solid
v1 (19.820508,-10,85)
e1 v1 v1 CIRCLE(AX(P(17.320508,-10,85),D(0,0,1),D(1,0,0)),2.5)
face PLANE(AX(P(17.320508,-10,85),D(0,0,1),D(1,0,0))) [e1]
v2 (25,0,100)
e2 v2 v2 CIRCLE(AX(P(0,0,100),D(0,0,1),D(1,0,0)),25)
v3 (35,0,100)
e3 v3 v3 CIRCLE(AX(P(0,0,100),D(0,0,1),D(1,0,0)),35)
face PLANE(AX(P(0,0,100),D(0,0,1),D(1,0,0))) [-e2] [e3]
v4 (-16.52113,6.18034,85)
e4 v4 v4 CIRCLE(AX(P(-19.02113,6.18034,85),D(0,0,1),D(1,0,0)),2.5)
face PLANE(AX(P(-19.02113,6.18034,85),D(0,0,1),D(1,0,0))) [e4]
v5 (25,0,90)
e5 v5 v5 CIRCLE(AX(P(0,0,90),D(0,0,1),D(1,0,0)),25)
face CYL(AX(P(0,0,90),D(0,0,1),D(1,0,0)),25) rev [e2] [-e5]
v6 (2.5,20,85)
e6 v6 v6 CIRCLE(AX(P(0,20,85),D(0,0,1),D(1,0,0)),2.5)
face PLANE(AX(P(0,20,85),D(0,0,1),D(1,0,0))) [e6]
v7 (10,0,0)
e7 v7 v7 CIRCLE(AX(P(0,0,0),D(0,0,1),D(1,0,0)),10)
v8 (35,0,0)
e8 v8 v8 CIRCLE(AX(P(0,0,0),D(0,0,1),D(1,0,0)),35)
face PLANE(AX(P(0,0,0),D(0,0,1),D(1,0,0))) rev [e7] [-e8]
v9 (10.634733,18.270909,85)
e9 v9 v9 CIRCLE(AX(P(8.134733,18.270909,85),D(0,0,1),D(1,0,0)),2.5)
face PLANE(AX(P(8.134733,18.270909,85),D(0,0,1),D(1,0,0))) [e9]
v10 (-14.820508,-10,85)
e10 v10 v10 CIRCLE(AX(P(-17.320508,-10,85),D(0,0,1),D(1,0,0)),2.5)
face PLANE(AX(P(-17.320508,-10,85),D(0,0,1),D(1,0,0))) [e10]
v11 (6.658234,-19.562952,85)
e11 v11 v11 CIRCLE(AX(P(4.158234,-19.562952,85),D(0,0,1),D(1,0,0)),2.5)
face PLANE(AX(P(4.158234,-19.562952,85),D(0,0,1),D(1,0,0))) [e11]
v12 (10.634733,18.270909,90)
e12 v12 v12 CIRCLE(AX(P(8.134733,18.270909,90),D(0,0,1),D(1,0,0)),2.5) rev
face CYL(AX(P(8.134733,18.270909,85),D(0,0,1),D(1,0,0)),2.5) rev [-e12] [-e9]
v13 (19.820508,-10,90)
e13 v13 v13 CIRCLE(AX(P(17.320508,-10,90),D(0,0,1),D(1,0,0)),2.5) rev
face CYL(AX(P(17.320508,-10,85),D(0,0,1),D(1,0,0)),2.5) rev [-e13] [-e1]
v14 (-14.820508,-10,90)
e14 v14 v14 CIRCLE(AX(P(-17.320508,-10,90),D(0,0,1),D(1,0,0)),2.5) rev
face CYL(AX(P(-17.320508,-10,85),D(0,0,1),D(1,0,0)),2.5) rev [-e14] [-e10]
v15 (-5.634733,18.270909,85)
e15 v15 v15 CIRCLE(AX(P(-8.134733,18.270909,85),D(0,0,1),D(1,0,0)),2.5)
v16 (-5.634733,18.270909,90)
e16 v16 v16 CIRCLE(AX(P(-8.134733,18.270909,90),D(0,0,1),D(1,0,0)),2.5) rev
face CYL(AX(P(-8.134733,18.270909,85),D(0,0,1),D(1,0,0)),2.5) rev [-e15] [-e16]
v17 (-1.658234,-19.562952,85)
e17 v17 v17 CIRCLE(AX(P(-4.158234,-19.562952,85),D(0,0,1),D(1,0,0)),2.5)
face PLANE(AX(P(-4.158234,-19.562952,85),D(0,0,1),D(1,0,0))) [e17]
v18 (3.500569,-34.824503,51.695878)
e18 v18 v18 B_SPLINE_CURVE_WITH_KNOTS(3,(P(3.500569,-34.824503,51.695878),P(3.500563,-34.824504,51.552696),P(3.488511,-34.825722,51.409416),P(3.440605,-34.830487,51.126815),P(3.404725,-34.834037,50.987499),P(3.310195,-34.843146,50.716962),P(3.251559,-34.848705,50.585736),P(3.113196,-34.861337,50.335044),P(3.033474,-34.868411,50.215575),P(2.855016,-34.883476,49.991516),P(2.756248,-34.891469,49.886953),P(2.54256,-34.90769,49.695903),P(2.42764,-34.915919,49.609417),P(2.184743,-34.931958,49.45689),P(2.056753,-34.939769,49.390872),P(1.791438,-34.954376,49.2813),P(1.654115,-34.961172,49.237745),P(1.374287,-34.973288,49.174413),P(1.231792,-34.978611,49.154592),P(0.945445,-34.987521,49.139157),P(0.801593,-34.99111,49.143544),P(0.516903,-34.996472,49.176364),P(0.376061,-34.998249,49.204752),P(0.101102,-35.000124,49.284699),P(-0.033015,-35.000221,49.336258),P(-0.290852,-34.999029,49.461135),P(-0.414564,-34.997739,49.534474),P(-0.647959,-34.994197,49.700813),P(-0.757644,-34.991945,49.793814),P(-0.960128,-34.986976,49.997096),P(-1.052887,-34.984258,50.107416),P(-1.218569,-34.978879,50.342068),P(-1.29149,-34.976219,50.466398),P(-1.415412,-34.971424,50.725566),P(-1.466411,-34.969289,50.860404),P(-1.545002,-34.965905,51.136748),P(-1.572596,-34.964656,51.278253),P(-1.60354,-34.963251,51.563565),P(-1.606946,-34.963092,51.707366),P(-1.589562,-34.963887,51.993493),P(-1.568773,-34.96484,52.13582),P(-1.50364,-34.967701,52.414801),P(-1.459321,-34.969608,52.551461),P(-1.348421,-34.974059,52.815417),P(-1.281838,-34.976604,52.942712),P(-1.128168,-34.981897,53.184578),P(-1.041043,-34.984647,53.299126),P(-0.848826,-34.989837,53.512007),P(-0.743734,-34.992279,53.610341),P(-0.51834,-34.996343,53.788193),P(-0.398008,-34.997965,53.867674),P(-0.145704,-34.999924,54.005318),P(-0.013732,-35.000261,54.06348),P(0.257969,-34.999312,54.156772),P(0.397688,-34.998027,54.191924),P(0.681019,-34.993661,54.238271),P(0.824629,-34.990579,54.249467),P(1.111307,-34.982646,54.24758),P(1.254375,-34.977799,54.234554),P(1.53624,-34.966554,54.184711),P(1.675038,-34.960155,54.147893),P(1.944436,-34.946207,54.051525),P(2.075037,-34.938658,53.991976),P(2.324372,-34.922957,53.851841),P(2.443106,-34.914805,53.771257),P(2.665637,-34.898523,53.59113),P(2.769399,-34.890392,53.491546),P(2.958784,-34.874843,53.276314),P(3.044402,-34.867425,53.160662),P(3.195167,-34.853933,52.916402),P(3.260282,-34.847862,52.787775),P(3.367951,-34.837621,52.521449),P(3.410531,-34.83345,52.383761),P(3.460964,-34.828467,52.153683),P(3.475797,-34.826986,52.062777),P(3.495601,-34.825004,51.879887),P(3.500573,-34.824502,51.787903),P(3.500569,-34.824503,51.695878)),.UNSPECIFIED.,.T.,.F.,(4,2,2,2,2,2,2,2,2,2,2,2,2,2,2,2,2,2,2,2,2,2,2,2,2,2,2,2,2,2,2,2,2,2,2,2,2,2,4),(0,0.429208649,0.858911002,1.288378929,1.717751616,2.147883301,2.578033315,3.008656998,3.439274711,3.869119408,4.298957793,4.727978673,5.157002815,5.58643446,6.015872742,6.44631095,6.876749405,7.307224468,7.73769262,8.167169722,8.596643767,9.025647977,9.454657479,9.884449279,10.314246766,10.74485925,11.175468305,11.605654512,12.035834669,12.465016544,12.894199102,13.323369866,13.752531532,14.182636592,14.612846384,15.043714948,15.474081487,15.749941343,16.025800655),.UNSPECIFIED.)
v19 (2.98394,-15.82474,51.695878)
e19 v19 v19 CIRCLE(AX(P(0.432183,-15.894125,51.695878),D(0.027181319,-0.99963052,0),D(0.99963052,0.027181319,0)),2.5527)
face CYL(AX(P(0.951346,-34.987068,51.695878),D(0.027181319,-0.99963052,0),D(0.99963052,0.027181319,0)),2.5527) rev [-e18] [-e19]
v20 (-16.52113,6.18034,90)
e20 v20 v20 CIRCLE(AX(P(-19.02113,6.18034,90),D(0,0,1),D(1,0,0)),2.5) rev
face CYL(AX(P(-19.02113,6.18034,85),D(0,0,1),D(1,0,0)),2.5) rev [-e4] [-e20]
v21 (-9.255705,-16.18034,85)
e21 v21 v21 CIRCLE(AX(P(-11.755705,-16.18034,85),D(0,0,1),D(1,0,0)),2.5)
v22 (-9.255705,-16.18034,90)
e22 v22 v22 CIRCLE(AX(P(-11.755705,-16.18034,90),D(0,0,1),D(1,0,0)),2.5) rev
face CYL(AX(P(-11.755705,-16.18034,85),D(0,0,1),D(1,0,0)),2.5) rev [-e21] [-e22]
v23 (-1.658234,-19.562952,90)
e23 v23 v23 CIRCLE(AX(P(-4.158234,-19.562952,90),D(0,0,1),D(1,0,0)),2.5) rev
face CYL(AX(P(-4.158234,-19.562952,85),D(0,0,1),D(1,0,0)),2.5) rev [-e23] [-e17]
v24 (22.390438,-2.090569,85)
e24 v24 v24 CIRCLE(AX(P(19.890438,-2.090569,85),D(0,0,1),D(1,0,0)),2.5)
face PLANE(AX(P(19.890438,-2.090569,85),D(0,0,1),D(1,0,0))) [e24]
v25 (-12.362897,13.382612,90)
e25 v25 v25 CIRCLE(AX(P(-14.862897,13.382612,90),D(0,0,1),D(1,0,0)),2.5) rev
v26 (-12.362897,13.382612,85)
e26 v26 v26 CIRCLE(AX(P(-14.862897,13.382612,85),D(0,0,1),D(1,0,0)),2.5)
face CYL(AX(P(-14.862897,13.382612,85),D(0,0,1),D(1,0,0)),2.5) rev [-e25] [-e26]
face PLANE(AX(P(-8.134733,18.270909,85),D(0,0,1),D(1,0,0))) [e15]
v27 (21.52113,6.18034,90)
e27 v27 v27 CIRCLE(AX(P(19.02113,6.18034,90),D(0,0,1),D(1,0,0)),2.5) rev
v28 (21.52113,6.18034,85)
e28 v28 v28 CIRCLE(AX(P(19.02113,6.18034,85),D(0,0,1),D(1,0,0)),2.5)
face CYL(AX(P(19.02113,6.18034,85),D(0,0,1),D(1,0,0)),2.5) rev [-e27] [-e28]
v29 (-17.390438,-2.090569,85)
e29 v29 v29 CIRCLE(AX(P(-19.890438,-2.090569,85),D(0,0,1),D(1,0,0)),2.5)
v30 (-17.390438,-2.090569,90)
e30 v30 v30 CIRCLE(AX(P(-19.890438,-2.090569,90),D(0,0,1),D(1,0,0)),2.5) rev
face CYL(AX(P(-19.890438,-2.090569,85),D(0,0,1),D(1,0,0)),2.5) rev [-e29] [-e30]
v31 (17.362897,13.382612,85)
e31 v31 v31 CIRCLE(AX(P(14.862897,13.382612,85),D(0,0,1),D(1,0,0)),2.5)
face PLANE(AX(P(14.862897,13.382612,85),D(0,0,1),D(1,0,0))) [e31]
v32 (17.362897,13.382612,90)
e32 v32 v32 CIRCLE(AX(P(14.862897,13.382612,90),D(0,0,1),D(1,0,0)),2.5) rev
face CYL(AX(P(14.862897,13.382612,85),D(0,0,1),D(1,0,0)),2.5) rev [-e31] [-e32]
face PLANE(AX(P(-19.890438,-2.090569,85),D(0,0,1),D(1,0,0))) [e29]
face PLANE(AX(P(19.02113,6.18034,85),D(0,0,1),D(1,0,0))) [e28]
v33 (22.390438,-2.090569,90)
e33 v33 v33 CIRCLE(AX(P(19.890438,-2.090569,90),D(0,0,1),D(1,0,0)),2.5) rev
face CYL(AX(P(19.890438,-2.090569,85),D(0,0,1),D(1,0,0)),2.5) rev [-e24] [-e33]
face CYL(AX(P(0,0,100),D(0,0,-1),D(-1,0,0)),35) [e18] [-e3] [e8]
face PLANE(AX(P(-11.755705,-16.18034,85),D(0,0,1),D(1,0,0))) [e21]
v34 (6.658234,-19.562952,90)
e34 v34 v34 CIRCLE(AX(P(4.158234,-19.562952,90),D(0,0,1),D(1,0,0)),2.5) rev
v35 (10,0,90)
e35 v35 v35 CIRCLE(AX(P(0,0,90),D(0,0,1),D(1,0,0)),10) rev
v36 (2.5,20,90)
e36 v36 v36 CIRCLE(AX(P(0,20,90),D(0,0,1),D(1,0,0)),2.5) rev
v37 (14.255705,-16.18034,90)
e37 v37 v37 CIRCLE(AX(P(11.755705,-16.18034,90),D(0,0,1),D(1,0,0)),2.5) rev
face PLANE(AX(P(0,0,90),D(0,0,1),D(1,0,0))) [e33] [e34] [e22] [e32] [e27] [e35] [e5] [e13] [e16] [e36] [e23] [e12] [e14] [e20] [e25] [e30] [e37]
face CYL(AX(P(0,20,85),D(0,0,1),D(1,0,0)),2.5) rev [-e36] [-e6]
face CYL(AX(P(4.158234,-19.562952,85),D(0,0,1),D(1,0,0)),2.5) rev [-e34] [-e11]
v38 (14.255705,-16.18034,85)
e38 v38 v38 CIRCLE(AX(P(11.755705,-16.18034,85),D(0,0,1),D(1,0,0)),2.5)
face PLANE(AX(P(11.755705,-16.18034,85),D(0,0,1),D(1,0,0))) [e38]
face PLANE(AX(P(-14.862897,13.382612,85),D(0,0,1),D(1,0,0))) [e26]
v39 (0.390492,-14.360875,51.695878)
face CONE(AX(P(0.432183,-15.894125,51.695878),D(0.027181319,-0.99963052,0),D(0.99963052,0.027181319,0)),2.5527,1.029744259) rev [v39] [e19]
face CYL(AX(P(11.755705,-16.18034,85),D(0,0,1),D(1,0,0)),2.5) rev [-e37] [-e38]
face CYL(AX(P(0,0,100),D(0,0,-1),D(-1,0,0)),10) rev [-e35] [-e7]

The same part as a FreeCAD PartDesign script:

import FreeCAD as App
import Part
import Sketcher

V = App.Vector

doc = App.newDocument("Part")
body = doc.addObject("PartDesign::Body", "Body")

sketch1 = body.newObject("Sketcher::SketchObject", "Sketch")
sketch1.AttachmentSupport = (doc.getObject("XY_Plane"), [""])
sketch1.MapMode = "FlatFace"
sketch1.addGeometry(Part.Circle(V(0, 0, 0), V(0, 0, 1), 35), False)
sketch1.addConstraint([
    Sketcher.Constraint("Coincident", 0, 3, -1, 1),
    Sketcher.Constraint("Diameter", 0, 70.0),
])
pad1 = body.newObject("PartDesign::Pad", "Pad")
pad1.Profile = sketch1
pad1.Length = 100

sketch2 = body.newObject("Sketcher::SketchObject", "Sketch001")
sketch2.AttachmentSupport = (doc.getObject("XY_Plane"), [""])
sketch2.MapMode = "FlatFace"
sketch2.AttachmentOffset = App.Placement(V(0, 0, 100), App.Rotation())
sketch2.addGeometry([
    Part.Circle(V(0, 20, 0), V(0, 0, 1), 2.5),
    Part.Circle(V(8.1, 18.3, 0), V(0, 0, 1), 2.5),
    Part.Circle(V(14.9, 13.4, 0), V(0, 0, 1), 2.5),
    Part.Circle(V(19, 6.2, 0), V(0, 0, 1), 2.5),
    Part.Circle(V(19.9, -2.1, 0), V(0, 0, 1), 2.5),
    Part.Circle(V(17.3, -10, 0), V(0, 0, 1), 2.5),
    Part.Circle(V(11.8, -16.2, 0), V(0, 0, 1), 2.5),
    Part.Circle(V(4.2, -19.6, 0), V(0, 0, 1), 2.5),
    Part.Circle(V(-4.2, -19.6, 0), V(0, 0, 1), 2.5),
    Part.Circle(V(-11.8, -16.2, 0), V(0, 0, 1), 2.5),
    Part.Circle(V(-17.3, -10, 0), V(0, 0, 1), 2.5),
    Part.Circle(V(-19.9, -2.1, 0), V(0, 0, 1), 2.5),
    Part.Circle(V(-19, 6.2, 0), V(0, 0, 1), 2.5),
    Part.Circle(V(-14.9, 13.4, 0), V(0, 0, 1), 2.5),
    Part.Circle(V(-8.1, 18.3, 0), V(0, 0, 1), 2.5),
], False)
sketch2.addConstraint([
    Sketcher.Constraint("Equal", 0, 1),
    Sketcher.Constraint("Equal", 1, 2),
    Sketcher.Constraint("Equal", 2, 3),
    Sketcher.Constraint("Equal", 3, 4),
    Sketcher.Constraint("Equal", 4, 5),
    Sketcher.Constraint("Equal", 5, 6),
    Sketcher.Constraint("Equal", 6, 7),
    Sketcher.Constraint("Equal", 7, 8),
    Sketcher.Constraint("Equal", 8, 9),
    Sketcher.Constraint("Equal", 9, 10),
    Sketcher.Constraint("Equal", 10, 11),
    Sketcher.Constraint("Equal", 11, 12),
    Sketcher.Constraint("Equal", 12, 13),
    Sketcher.Constraint("Equal", 13, 14),
    Sketcher.Constraint("Symmetric", 7, 3, 8, 3, -2),
    Sketcher.Constraint("Symmetric", 6, 3, 9, 3, -2),
    Sketcher.Constraint("Symmetric", 5, 3, 10, 3, -2),
    Sketcher.Constraint("Symmetric", 4, 3, 11, 3, -2),
    Sketcher.Constraint("Symmetric", 3, 3, 12, 3, -2),
    Sketcher.Constraint("Symmetric", 2, 3, 13, 3, -2),
    Sketcher.Constraint("Symmetric", 1, 3, 14, 3, -2),
    Sketcher.Constraint("PointOnObject", 0, 3, -2),
    Sketcher.Constraint("Diameter", 0, 5.0),
    Sketcher.Constraint("DistanceY", -1, 1, 0, 3, 20.0),
    Sketcher.Constraint("DistanceY", 5, 3, -1, 1, 10.0),
    Sketcher.Constraint("DistanceY", -1, 1, 1, 3, 18.270909),
    Sketcher.Constraint("DistanceX", -1, 1, 3, 3, 19.02113),
    Sketcher.Constraint("DistanceY", -1, 1, 3, 3, 6.18034),
    Sketcher.Constraint("DistanceY", 4, 3, -1, 1, 2.090569),
    Sketcher.Constraint("DistanceX", -1, 1, 5, 3, 17.320508),
    Sketcher.Constraint("DistanceY", 6, 3, -1, 1, 16.18034),
    Sketcher.Constraint("DistanceX", 2, 3, 4, 3, 5.027541),
    Sketcher.Constraint("DistanceY", 4, 3, 2, 3, 15.473181),
    Sketcher.Constraint("DistanceX", 5, 3, 4, 3, 2.56993),
    Sketcher.Constraint("DistanceX", 6, 3, 2, 3, 3.107191),
    Sketcher.Constraint("DistanceX", 7, 3, 6, 3, 7.597471),
    Sketcher.Constraint("DistanceY", 7, 3, 3, 3, 25.743292),
    Sketcher.Constraint("DistanceX", 13, 3, 1, 3, 22.997629),
])
pocket1 = body.newObject("PartDesign::Pocket", "Pocket")
pocket1.Profile = sketch2
pocket1.Length = 15

sketch3 = body.newObject("Sketcher::SketchObject", "Sketch002")
sketch3.AttachmentSupport = (doc.getObject("XY_Plane"), [""])
sketch3.MapMode = "FlatFace"
sketch3.AttachmentOffset = App.Placement(V(0, 0, 100), App.Rotation())
sketch3.addGeometry(Part.Circle(V(0, 0, 0), V(0, 0, 1), 25), False)
sketch3.addConstraint([
    Sketcher.Constraint("Coincident", 0, 3, -1, 1),
    Sketcher.Constraint("Diameter", 0, 50.0),
])
pocket2 = body.newObject("PartDesign::Pocket", "Pocket001")
pocket2.Profile = sketch3
pocket2.Length = 10

sketch4 = body.newObject("Sketcher::SketchObject", "Sketch003")
sketch4.AttachmentSupport = (doc.getObject("XY_Plane"), [""])
sketch4.MapMode = "FlatFace"
sketch4.addGeometry(Part.Circle(V(0, 0, 0), V(0, 0, 1), 10), False)
sketch4.addConstraint([
    Sketcher.Constraint("Coincident", 0, 3, -1, 1),
    Sketcher.Constraint("Diameter", 0, 20.0),
])
pocket3 = body.newObject("PartDesign::Pocket", "Pocket002")
pocket3.Profile = sketch4
pocket3.Type = "ThroughAll"
pocket3.Reversed = True

sketch5 = body.newObject("Sketcher::SketchObject", "Sketch004")
sketch5.Placement = App.Placement(V(0.951346, -34.987068, 0), App.Rotation(V(-0.99963052, -0.027181319, 0), V(0, 0, -1.000000001), V(0.027181319, -0.99963052, 0), "ZXY"))
sketch5.addGeometry(Part.Circle(V(0, -51.7, 0), V(0, 0, 1), 2.6), False)
sketch5.addConstraint([
    Sketcher.Constraint("PointOnObject", 0, 3, -2),
    Sketcher.Constraint("Diameter", 0, 5.1054),
    Sketcher.Constraint("DistanceY", 0, 3, -1, 1, 51.695878),
])
doc.recompute()
hole = body.newObject("PartDesign::Hole", "Hole")
hole.Profile = sketch5
hole.ThreadType = "None"
hole.Diameter = 5.1054
hole.DepthType = "Dimension"
hole.Depth = 19.1
hole.DrillPoint = "Angled"
hole.DrillPointAngle = 118

doc.recompute()
